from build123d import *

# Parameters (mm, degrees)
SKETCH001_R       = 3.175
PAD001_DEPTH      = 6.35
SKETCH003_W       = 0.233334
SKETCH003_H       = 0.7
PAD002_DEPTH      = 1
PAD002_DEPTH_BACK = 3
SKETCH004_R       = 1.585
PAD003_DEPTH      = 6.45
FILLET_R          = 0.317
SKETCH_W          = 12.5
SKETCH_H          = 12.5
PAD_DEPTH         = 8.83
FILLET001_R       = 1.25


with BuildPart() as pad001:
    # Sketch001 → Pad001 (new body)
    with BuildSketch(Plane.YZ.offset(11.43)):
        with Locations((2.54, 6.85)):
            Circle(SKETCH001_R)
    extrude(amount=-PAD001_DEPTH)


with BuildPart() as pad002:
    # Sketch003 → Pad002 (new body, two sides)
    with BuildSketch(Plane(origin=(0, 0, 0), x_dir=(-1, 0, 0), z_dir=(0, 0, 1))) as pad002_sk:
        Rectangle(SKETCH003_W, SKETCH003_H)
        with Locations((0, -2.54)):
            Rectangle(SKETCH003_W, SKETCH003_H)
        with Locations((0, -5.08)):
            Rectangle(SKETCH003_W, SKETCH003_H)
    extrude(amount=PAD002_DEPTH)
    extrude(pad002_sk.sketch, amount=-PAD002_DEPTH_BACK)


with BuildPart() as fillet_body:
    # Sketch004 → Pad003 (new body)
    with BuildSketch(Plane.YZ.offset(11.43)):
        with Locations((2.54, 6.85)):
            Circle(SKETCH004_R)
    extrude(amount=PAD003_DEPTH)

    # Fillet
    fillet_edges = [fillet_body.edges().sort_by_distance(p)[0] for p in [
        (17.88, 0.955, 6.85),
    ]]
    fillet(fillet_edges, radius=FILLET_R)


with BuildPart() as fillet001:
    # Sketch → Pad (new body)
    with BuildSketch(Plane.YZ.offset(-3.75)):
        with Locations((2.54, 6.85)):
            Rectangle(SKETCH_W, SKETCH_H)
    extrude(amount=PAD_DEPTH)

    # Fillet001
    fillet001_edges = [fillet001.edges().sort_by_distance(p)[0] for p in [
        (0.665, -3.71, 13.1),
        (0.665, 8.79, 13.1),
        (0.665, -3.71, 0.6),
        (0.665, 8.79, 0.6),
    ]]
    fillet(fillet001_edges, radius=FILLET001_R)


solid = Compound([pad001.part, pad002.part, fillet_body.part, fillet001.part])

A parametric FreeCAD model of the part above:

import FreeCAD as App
import Part
import Sketcher

V = App.Vector
Q = App.Units.Quantity


def edges_at(feature, points):
    """Names of the edges that pass closest to the given points."""
    edges = feature.Shape.Edges
    near = lambda p: min(range(len(edges)), key=lambda i: edges[i].distToShape(Part.Vertex(*p))[0])
    return sorted({f"Edge{near(p) + 1}" for p in points})

doc = App.newDocument("Part")
body = doc.addObject("PartDesign::Body", "Body")

# Sketch on YZ plane
sketch1 = body.newObject("Sketcher::SketchObject", "Sketch")
sketch1.AttachmentSupport = (doc.getObject("YZ_Plane"), [""])
sketch1.MapMode = "FlatFace"
sketch1.AttachmentOffset = App.Placement(V(0, 0, 11.43), App.Rotation())
sketch1.addGeometry(Part.Circle(V(2.5, 6.8, 0), V(0, 0, 1), 3.2), False)
sketch1.addConstraint([
    Sketcher.Constraint("Diameter", 0, Q("6.35 mm")),
    Sketcher.Constraint("DistanceX", -1, 1, 0, 3, Q("2.54 mm")),
    Sketcher.Constraint("DistanceY", -1, 1, 0, 3, Q("6.85 mm")),
])
pad1 = body.newObject("PartDesign::Pad", "Pad")
pad1.Profile = sketch1
pad1.Length = 6.35
pad1.Reversed = True
body2 = doc.addObject("PartDesign::Body", "Body001")
body2.AllowCompound = True

# Sketch on XY plane
sketch2 = body2.newObject("Sketcher::SketchObject", "Sketch001")
sketch2.AttachmentSupport = (doc.getObject("XY_Plane001"), [""])
sketch2.MapMode = "FlatFace"
sketch2.addGeometry([
    Part.LineSegment(V(0.12, -0.35, 0), V(0.12, 0.35, 0)),  # 0
    Part.LineSegment(V(0.12, 0.35, 0), V(-0.12, 0.35, 0)),  # 1
    Part.LineSegment(V(-0.12, 0.35, 0), V(-0.12, -0.35, 0)),  # 2
    Part.LineSegment(V(-0.12, -0.35, 0), V(0.12, -0.35, 0)),  # 3
    Part.LineSegment(V(0.12, 2.19, 0), V(0.12, 2.89, 0)),  # 4
    Part.LineSegment(V(0.12, 2.89, 0), V(-0.12, 2.89, 0)),  # 5
    Part.LineSegment(V(-0.12, 2.89, 0), V(-0.12, 2.19, 0)),  # 6
    Part.LineSegment(V(-0.12, 2.19, 0), V(0.12, 2.19, 0)),  # 7
    Part.LineSegment(V(0.12, 4.73, 0), V(0.12, 5.43, 0)),  # 8
    Part.LineSegment(V(0.12, 5.43, 0), V(-0.12, 5.43, 0)),  # 9
    Part.LineSegment(V(-0.12, 5.43, 0), V(-0.12, 4.73, 0)),  # 10
    Part.LineSegment(V(-0.12, 4.73, 0), V(0.12, 4.73, 0)),  # 11
], False)
sketch2.addConstraint([
    Sketcher.Constraint("Coincident", 0, 2, 1, 1),
    Sketcher.Constraint("Coincident", 1, 2, 2, 1),
    Sketcher.Constraint("Coincident", 2, 2, 3, 1),
    Sketcher.Constraint("Coincident", 3, 2, 0, 1),
    Sketcher.Constraint("Coincident", 4, 2, 5, 1),
    Sketcher.Constraint("Coincident", 5, 2, 6, 1),
    Sketcher.Constraint("Coincident", 6, 2, 7, 1),
    Sketcher.Constraint("Coincident", 7, 2, 4, 1),
    Sketcher.Constraint("Coincident", 8, 2, 9, 1),
    Sketcher.Constraint("Coincident", 9, 2, 10, 1),
    Sketcher.Constraint("Coincident", 10, 2, 11, 1),
    Sketcher.Constraint("Coincident", 11, 2, 8, 1),
    Sketcher.Constraint("Vertical", 0),
    Sketcher.Constraint("Horizontal", 1),
    Sketcher.Constraint("Vertical", 2),
    Sketcher.Constraint("Horizontal", 3),
    Sketcher.Constraint("Vertical", 4),
    Sketcher.Constraint("Horizontal", 5),
    Sketcher.Constraint("Vertical", 6),
    Sketcher.Constraint("Horizontal", 7),
    Sketcher.Constraint("Vertical", 8),
    Sketcher.Constraint("Horizontal", 9),
    Sketcher.Constraint("Vertical", 10),
    Sketcher.Constraint("Horizontal", 11),
    Sketcher.Constraint("Symmetric", 0, 2, 2, 2, -1, 1),
    Sketcher.Constraint("Vertical", 3, 2, 4, 2),
    Sketcher.Constraint("Vertical", 2, 2, 5, 2),
    Sketcher.Constraint("Vertical", 7, 2, 8, 2),
    Sketcher.Constraint("Vertical", 6, 2, 9, 2),
    Sketcher.Constraint("Equal", 2, 4),
    Sketcher.Constraint("Equal", 6, 8),
    Sketcher.Constraint("DistanceY", 0, 1, 0, 2, Q("0.7 mm")),
    Sketcher.Constraint("DistanceY", -1, 1, 4, 2, Q("2.89 mm")),
    Sketcher.Constraint("DistanceY", -1, 1, 8, 2, Q("5.43 mm")),
    Sketcher.Constraint("DistanceX", 1, 2, 1, 1, Q("0.233334 mm")),
])
pad2 = body2.newObject("PartDesign::Pad", "Pad001")
pad2.Profile = sketch2
pad2.Type = "TwoLengths"
pad2.Length = 1
pad2.Length2 = 3
body3 = doc.addObject("PartDesign::Body", "Body002")

# Sketch on YZ plane
sketch3 = body3.newObject("Sketcher::SketchObject", "Sketch002")
sketch3.AttachmentSupport = (doc.getObject("YZ_Plane002"), [""])
sketch3.MapMode = "FlatFace"
sketch3.AttachmentOffset = App.Placement(V(0, 0, 11.43), App.Rotation())
sketch3.addGeometry(Part.Circle(V(2.5, 6.8, 0), V(0, 0, 1), 1.6), False)
sketch3.addConstraint([
    Sketcher.Constraint("Diameter", 0, Q("3.17 mm")),
    Sketcher.Constraint("DistanceX", -1, 1, 0, 3, Q("2.54 mm")),
    Sketcher.Constraint("DistanceY", -1, 1, 0, 3, Q("6.85 mm")),
])
pad3 = body3.newObject("PartDesign::Pad", "Pad002")
pad3.Profile = sketch3
pad3.Length = 6.45
doc.recompute()

fillet = body3.newObject("PartDesign::Fillet", "Fillet")
fillet.Base = (pad3, edges_at(pad3, [(17.88, 0.955, 6.85)]))
fillet.Radius = 0.317
body4 = doc.addObject("PartDesign::Body", "Body003")

# Sketch on YZ plane
sketch4 = body4.newObject("Sketcher::SketchObject", "Sketch003")
sketch4.AttachmentSupport = (doc.getObject("YZ_Plane003"), [""])
sketch4.MapMode = "FlatFace"
sketch4.AttachmentOffset = App.Placement(V(0, 0, -3.75), App.Rotation())
sketch4.addGeometry([
    Part.LineSegment(V(-4, 13, 0), V(-4, 1, 0)),
    Part.LineSegment(V(-4, 1, 0), V(9, 1, 0)),
    Part.LineSegment(V(9, 1, 0), V(9, 13, 0)),
    Part.LineSegment(V(9, 13, 0), V(-4, 13, 0)),
], False)
sketch4.addConstraint([
    Sketcher.Constraint("Coincident", 0, 2, 1, 1),
    Sketcher.Constraint("Coincident", 1, 2, 2, 1),
    Sketcher.Constraint("Coincident", 2, 2, 3, 1),
    Sketcher.Constraint("Coincident", 3, 2, 0, 1),
    Sketcher.Constraint("Vertical", 0),
    Sketcher.Constraint("Horizontal", 1),
    Sketcher.Constraint("Vertical", 2),
    Sketcher.Constraint("Horizontal", 3),
    Sketcher.Constraint("Equal", 3, 0),
    Sketcher.Constraint("DistanceX", 1, 1, 1, 2, Q("12.5 mm")),
    Sketcher.Constraint("DistanceY", -1, 1, 0, 2, Q("0.6 mm")),
    Sketcher.Constraint("DistanceX", 0, 2, -1, 1, Q("3.71 mm")),
])
pad4 = body4.newObject("PartDesign::Pad", "Pad003")
pad4.Profile = sketch4
pad4.Length = 8.83
doc.recompute()

fillet2 = body4.newObject("PartDesign::Fillet", "Fillet001")
fillet2.Base = (pad4, edges_at(pad4, [
    (0.665, -3.71, 13.1),
    (0.665, 8.79, 13.1),
    (0.665, -3.71, 0.6),
    (0.665, 8.79, 0.6),
]))
fillet2.Radius = 1.25

doc.recompute()
